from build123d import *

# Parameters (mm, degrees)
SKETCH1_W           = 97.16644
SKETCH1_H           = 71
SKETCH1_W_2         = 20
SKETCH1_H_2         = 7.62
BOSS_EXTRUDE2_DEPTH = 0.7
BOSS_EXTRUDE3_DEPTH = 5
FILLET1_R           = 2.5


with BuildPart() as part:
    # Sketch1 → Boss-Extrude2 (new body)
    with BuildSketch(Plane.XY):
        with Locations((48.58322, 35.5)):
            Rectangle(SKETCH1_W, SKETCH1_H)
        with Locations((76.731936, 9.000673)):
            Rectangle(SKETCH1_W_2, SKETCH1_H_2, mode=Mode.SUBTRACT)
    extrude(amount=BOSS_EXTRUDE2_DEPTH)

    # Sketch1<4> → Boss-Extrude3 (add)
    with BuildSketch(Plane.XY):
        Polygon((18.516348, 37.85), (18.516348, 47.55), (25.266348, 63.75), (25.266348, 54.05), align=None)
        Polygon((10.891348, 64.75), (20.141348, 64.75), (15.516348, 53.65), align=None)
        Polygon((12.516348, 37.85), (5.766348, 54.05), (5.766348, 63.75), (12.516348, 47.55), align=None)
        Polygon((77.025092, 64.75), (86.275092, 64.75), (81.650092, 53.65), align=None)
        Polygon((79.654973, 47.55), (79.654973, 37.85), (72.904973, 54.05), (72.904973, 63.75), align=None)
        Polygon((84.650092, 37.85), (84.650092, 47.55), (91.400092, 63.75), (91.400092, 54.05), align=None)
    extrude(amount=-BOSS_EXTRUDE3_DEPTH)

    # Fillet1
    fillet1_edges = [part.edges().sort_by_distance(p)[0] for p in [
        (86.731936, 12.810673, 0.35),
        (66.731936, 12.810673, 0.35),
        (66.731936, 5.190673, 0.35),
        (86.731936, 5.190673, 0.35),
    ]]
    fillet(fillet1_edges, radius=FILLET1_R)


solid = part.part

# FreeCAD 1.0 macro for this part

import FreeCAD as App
import Part
import Sketcher
from FreeCAD import Vector


def edges_at(feature, points):
    """Names of the edges that pass closest to the given points."""
    edges = feature.Shape.Edges
    near = lambda p: min(range(len(edges)), key=lambda i: edges[i].distToShape(Part.Vertex(*p))[0])
    return sorted({f"Edge{near(p) + 1}" for p in points})


def add_polygon(sketch, points):
    """Adds a closed chain of lines whose ends are joined by coincident constraints."""
    first, n = sketch.GeometryCount, len(points)
    for a, b in zip(points, points[1:] + points[:1]):
        sketch.addGeometry(Part.LineSegment(App.Vector(*a, 0), App.Vector(*b, 0)), False)
    for i in range(n):
        sketch.addConstraint(Sketcher.Constraint("Coincident", first + i, 2, first + (i + 1) % n, 1))

doc = App.newDocument("Part")
params = doc.addObject("Spreadsheet::Sheet", "Params")
for row, (alias, value) in enumerate([
    ("sketch1_width", "20 mm"),
    ("sketch1_height", "71 mm"),
    ("sketch1_height2", "7.62 mm"),
    ("pad1_length", "0.7 mm"),
    ("sketch2_height", "9.7 mm"),
    ("sketch2_width", "9.25 mm"),
    ("pad2_length", "5 mm"),
    ("fillet_radius", "2.5 mm"),
], start=1):
    params.set(f"A{row}", alias)
    params.set(f"B{row}", "=" + value)
    params.setAlias(f"B{row}", alias)

body = doc.addObject("PartDesign::Body", "Body")

# Sketch on XY plane
sketch1 = body.newObject("Sketcher::SketchObject", "Sketch")
sketch1.AttachmentSupport = (doc.getObject("XY_Plane"), [""])
sketch1.MapMode = "FlatFace"
add_polygon(sketch1, [(0, 71), (0, 0), (97.16644, 0), (97.16644, 71)])  # lines 0-3
add_polygon(sketch1, [(86.731936, 5.190673), (66.731936, 5.190673), (66.731936, 12.810673), (86.731936, 12.810673)])  # lines 4-7
sketch1.addConstraint(Sketcher.Constraint("Vertical", 0))
sketch1.addConstraint(Sketcher.Constraint("Horizontal", 1))
sketch1.addConstraint(Sketcher.Constraint("Vertical", 2))
sketch1.addConstraint(Sketcher.Constraint("Horizontal", 3))
sketch1.addConstraint(Sketcher.Constraint("Horizontal", 4))
sketch1.addConstraint(Sketcher.Constraint("Vertical", 5))
sketch1.addConstraint(Sketcher.Constraint("Horizontal", 6))
sketch1.addConstraint(Sketcher.Constraint("Vertical", 7))
sketch1.addConstraint(Sketcher.Constraint("Coincident", 0, 2, -1, 1))
sketch1.addConstraint(Sketcher.Constraint("DistanceX", 4, 2, 4, 1, 20.0))
sketch1.addConstraint(Sketcher.Constraint("DistanceY", 0, 2, 0, 1, 71.0))
sketch1.addConstraint(Sketcher.Constraint("DistanceY", 5, 1, 5, 2, 7.62))
sketch1.addConstraint(Sketcher.Constraint("DistanceX", 1, 1, 1, 2, 97.16644))
sketch1.addConstraint(Sketcher.Constraint("DistanceX", -1, 1, 4, 2, 66.731936))
sketch1.addConstraint(Sketcher.Constraint("DistanceY", -1, 1, 4, 2, 5.190673))
sketch1.setExpression("Constraints[17]", "Params.sketch1_width")
sketch1.setExpression("Constraints[18]", "Params.sketch1_height")
sketch1.setExpression("Constraints[19]", "Params.sketch1_height2")
pad1 = body.newObject("PartDesign::Pad", "Pad")
pad1.Profile = sketch1
pad1.setExpression("Length", "Params.pad1_length")

# Sketch on XY plane
sketch2 = body.newObject("Sketcher::SketchObject", "Sketch001")
sketch2.AttachmentSupport = (doc.getObject("XY_Plane"), [""])
sketch2.MapMode = "FlatFace"
add_polygon(sketch2, [(18.516348, 47.55), (18.516348, 37.85), (25.266348, 54.05), (25.266348, 63.75)])  # lines 0-3
add_polygon(sketch2, [(20.141348, 64.75), (10.891348, 64.75), (15.516348, 53.65)])  # lines 4-6
add_polygon(sketch2, [(5.766348, 54.05), (12.516348, 37.85), (12.516348, 47.55), (5.766348, 63.75)])  # lines 7-10
add_polygon(sketch2, [(86.275092, 64.75), (77.025092, 64.75), (81.650092, 53.65)])  # lines 11-13
add_polygon(sketch2, [(79.654973, 37.85), (79.654973, 47.55), (72.904973, 63.75), (72.904973, 54.05)])  # lines 14-17
add_polygon(sketch2, [(84.650092, 47.55), (84.650092, 37.85), (91.400092, 54.05), (91.400092, 63.75)])  # lines 18-21
sketch2.addConstraint(Sketcher.Constraint("Vertical", 0))
sketch2.addConstraint(Sketcher.Constraint("Vertical", 2))
sketch2.addConstraint(Sketcher.Constraint("Horizontal", 4))
sketch2.addConstraint(Sketcher.Constraint("Vertical", 8))
sketch2.addConstraint(Sketcher.Constraint("Vertical", 10))
sketch2.addConstraint(Sketcher.Constraint("Horizontal", 11))
sketch2.addConstraint(Sketcher.Constraint("Vertical", 14))
sketch2.addConstraint(Sketcher.Constraint("Vertical", 16))
sketch2.addConstraint(Sketcher.Constraint("Vertical", 18))
sketch2.addConstraint(Sketcher.Constraint("Vertical", 20))
sketch2.addConstraint(Sketcher.Constraint("Parallel", 1, 3))
sketch2.addConstraint(Sketcher.Constraint("Parallel", 3, 6))
sketch2.addConstraint(Sketcher.Constraint("Parallel", 5, 7))
sketch2.addConstraint(Sketcher.Constraint("Parallel", 7, 9))
sketch2.addConstraint(Sketcher.Constraint("Parallel", 9, 12))
sketch2.addConstraint(Sketcher.Constraint("Parallel", 6, 13))
sketch2.addConstraint(Sketcher.Constraint("Parallel", 12, 15))
sketch2.addConstraint(Sketcher.Constraint("Parallel", 15, 17))
sketch2.addConstraint(Sketcher.Constraint("Parallel", 13, 19))
sketch2.addConstraint(Sketcher.Constraint("Parallel", 19, 21))
sketch2.addConstraint(Sketcher.Constraint("Horizontal", 0, 2, 7, 2))
sketch2.addConstraint(Sketcher.Constraint("Horizontal", 3, 2, 8, 2))
sketch2.addConstraint(Sketcher.Constraint("Horizontal", 2, 2, 9, 2))
sketch2.addConstraint(Sketcher.Constraint("Horizontal", 6, 2, 11, 2))
sketch2.addConstraint(Sketcher.Constraint("Horizontal", 5, 2, 12, 2))
sketch2.addConstraint(Sketcher.Constraint("Horizontal", 8, 2, 14, 2))
sketch2.addConstraint(Sketcher.Constraint("Horizontal", 9, 2, 15, 2))
sketch2.addConstraint(Sketcher.Constraint("Horizontal", 10, 2, 16, 2))
sketch2.addConstraint(Sketcher.Constraint("Horizontal", 17, 2, 18, 2))
sketch2.addConstraint(Sketcher.Constraint("Horizontal", 16, 2, 19, 2))
sketch2.addConstraint(Sketcher.Constraint("Horizontal", 15, 2, 20, 2))
sketch2.addConstraint(Sketcher.Constraint("Equal", 5, 6))
sketch2.addConstraint(Sketcher.Constraint("DistanceY", 0, 2, 0, 1, 9.7))
sketch2.addConstraint(Sketcher.Constraint("DistanceY", 2, 2, 4, 2, 1.0))
sketch2.addConstraint(Sketcher.Constraint("DistanceX", 5, 2, 3, 2, 3.0))
sketch2.addConstraint(Sketcher.Constraint("DistanceX", 7, 2, 0, 2, 6.0))
sketch2.addConstraint(Sketcher.Constraint("DistanceX", 12, 2, 18, 2, 3.0))
sketch2.addConstraint(Sketcher.Constraint("DistanceX", 4, 2, 4, 1, 9.25))
sketch2.addConstraint(Sketcher.Constraint("DistanceY", 0, 2, 1, 2, 16.2))
sketch2.addConstraint(Sketcher.Constraint("DistanceY", 3, 2, 5, 2, 6.1))
sketch2.addConstraint(Sketcher.Constraint("DistanceY", -1, 1, 0, 2, 37.85))
sketch2.addConstraint(Sketcher.Constraint("DistanceX", -1, 1, 0, 2, 18.516348))
sketch2.addConstraint(Sketcher.Constraint("DistanceX", -1, 1, 11, 2, 77.025092))
sketch2.addConstraint(Sketcher.Constraint("DistanceX", 14, 2, 12, 2, 1.995119))
sketch2.setExpression("Constraints[54]", "Params.sketch2_height")
sketch2.setExpression("Constraints[59]", "Params.sketch2_width")
pad2 = body.newObject("PartDesign::Pad", "Pad001")
pad2.Profile = sketch2
pad2.setExpression("Length", "Params.pad2_length")
pad2.Reversed = True
doc.recompute()

fillet = body.newObject("PartDesign::Fillet", "Fillet")
fillet.Base = (pad2, edges_at(pad2, [
    (86.732, 12.811, 0.35),
    (66.732, 12.811, 0.35),
    (66.732, 5.191, 0.35),
    (86.732, 5.191, 0.35),
]))
fillet.setExpression("Radius", "Params.fillet_radius")

doc.recompute()
